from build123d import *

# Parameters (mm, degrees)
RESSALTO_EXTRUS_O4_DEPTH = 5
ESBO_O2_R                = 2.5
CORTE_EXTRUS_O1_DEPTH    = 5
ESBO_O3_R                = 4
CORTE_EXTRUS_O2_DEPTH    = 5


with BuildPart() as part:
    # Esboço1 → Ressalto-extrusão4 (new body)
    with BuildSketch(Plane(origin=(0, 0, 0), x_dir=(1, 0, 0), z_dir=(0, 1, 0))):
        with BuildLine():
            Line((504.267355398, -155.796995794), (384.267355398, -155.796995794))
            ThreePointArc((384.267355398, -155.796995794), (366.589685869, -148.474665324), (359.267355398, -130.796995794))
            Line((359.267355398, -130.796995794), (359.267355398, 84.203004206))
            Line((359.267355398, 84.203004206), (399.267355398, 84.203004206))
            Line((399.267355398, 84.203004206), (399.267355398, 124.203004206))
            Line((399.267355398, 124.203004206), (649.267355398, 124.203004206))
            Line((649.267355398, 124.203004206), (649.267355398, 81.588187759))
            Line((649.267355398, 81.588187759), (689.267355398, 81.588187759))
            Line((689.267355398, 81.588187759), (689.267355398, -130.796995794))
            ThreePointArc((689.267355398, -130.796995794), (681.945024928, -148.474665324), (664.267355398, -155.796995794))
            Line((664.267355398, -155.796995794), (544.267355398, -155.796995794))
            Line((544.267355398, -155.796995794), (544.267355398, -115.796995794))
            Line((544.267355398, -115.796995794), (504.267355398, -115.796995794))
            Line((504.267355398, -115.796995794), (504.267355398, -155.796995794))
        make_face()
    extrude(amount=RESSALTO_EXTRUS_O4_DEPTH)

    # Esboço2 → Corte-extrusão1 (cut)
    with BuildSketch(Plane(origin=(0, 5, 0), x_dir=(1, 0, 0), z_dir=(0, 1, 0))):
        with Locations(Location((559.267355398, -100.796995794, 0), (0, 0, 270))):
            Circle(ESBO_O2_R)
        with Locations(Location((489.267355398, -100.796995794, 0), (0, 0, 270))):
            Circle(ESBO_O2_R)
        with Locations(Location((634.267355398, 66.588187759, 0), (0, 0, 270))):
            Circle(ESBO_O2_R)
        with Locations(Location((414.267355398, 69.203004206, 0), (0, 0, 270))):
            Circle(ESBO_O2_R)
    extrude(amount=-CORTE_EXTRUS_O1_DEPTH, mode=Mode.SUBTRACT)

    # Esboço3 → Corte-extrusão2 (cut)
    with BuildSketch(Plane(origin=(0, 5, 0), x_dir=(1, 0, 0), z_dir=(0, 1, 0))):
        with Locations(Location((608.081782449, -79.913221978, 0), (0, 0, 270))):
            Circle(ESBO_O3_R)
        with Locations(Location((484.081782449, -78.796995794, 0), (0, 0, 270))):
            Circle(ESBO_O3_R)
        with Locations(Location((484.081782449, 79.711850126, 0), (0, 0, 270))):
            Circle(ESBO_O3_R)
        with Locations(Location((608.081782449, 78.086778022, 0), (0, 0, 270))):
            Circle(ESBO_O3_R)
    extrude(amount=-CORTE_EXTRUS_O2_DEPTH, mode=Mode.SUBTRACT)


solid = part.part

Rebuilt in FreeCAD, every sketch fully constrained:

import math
import FreeCAD as App
import Part
import Sketcher

V = App.Vector
Q = App.Units.Quantity

doc = App.newDocument("Part")
params = doc.addObject("Spreadsheet::Sheet", "Params")
for row, (alias, value) in enumerate([
    ("sketch1_radius", "25 mm"),
    ("sketch1_width", "120 mm"),
    ("sketch1_width2", "40 mm"),
    ("sketch1_height", "215 mm"),
    ("pad1_length", "5 mm"),
    ("sketch2_diameter", "5 mm"),
    ("pocket1_length", "5 mm"),
    ("sketch3_diameter", "8 mm"),
    ("pocket2_length", "5 mm"),
], start=1):
    params.set(f"A{row}", alias)
    params.set(f"B{row}", "=" + value)
    params.setAlias(f"B{row}", alias)

body = doc.addObject("PartDesign::Body", "Body")

# Sketch on XZ plane
sketch1 = body.newObject("Sketcher::SketchObject", "Sketch")
sketch1.AttachmentSupport = (doc.getObject("XZ_Plane"), [""])
sketch1.MapMode = "FlatFace"
sketch1.addGeometry([
    Part.LineSegment(V(384, 156, 0), V(504, 156, 0)),  # 0
    Part.LineSegment(V(504, 156, 0), V(504, 116, 0)),  # 1
    Part.LineSegment(V(504, 116, 0), V(544, 116, 0)),  # 2
    Part.LineSegment(V(544, 116, 0), V(544, 156, 0)),  # 3
    Part.LineSegment(V(544, 156, 0), V(664, 156, 0)),  # 4
    Part.ArcOfCircle(Part.Circle(V(664, 131, 0), V(0, 0, 1), 25), math.radians(0), math.radians(90)),  # 5
    Part.LineSegment(V(689, 131, 0), V(689, -82, 0)),  # 6
    Part.LineSegment(V(689, -82, 0), V(649, -82, 0)),  # 7
    Part.LineSegment(V(649, -82, 0), V(649, -124, 0)),  # 8
    Part.LineSegment(V(649, -124, 0), V(399, -124, 0)),  # 9
    Part.LineSegment(V(399, -124, 0), V(399, -84, 0)),  # 10
    Part.LineSegment(V(399, -84, 0), V(359, -84, 0)),  # 11
    Part.LineSegment(V(359, -84, 0), V(359, 131, 0)),  # 12
    Part.ArcOfCircle(Part.Circle(V(384, 131, 0), V(0, 0, 1), 25), math.radians(90), math.radians(180)),  # 13
], False)
sketch1.addConstraint([
    Sketcher.Constraint("Coincident", 0, 2, 1, 1),
    Sketcher.Constraint("Coincident", 1, 2, 2, 1),
    Sketcher.Constraint("Coincident", 2, 2, 3, 1),
    Sketcher.Constraint("Coincident", 3, 2, 4, 1),
    Sketcher.Constraint("Tangent", 4, 2, 5, 2),
    Sketcher.Constraint("Tangent", 5, 1, 6, 1),
    Sketcher.Constraint("Coincident", 6, 2, 7, 1),
    Sketcher.Constraint("Coincident", 7, 2, 8, 1),
    Sketcher.Constraint("Coincident", 8, 2, 9, 1),
    Sketcher.Constraint("Coincident", 9, 2, 10, 1),
    Sketcher.Constraint("Coincident", 10, 2, 11, 1),
    Sketcher.Constraint("Coincident", 11, 2, 12, 1),
    Sketcher.Constraint("Tangent", 12, 2, 13, 2),
    Sketcher.Constraint("Tangent", 13, 1, 0, 1),
    Sketcher.Constraint("Horizontal", 0),
    Sketcher.Constraint("Vertical", 1),
    Sketcher.Constraint("Horizontal", 2),
    Sketcher.Constraint("Vertical", 3),
    Sketcher.Constraint("Horizontal", 4),
    Sketcher.Constraint("Vertical", 6),
    Sketcher.Constraint("Horizontal", 7),
    Sketcher.Constraint("Vertical", 8),
    Sketcher.Constraint("Horizontal", 9),
    Sketcher.Constraint("Vertical", 10),
    Sketcher.Constraint("Horizontal", 11),
    Sketcher.Constraint("Vertical", 12),
    Sketcher.Constraint("Equal", 5, 13),
    Sketcher.Constraint("Horizontal", 5, 3, 13, 3),
    Sketcher.Constraint("Equal", 0, 4),
    Sketcher.Constraint("Equal", 2, 7),
    Sketcher.Constraint("Equal", 7, 11),
    Sketcher.Constraint("Equal", 11, 1),
    Sketcher.Constraint("Equal", 3, 10),
    Sketcher.Constraint("Radius", 5, Q("25 mm")),
    Sketcher.Constraint("DistanceX", 0, 1, 0, 2, Q("120 mm")),
    Sketcher.Constraint("DistanceX", 2, 1, 2, 2, Q("40 mm")),
    Sketcher.Constraint("DistanceY", 12, 1, 12, 2, Q("215 mm")),
    Sketcher.Constraint("DistanceY", 6, 2, 6, 1, Q("212.385184 mm")),
    Sketcher.Constraint("DistanceX", -1, 1, 5, 3, Q("664.267355 mm")),
    Sketcher.Constraint("DistanceY", -1, 1, 5, 3, Q("130.796996 mm")),
])
sketch1.setExpression("Constraints[33]", "Params.sketch1_radius")
sketch1.setExpression("Constraints[34]", "Params.sketch1_width")
sketch1.setExpression("Constraints[35]", "Params.sketch1_width2")
sketch1.setExpression("Constraints[36]", "Params.sketch1_height")
pad1 = body.newObject("PartDesign::Pad", "Pad")
pad1.Profile = sketch1
pad1.setExpression("Length", "Params.pad1_length")
pad1.Reversed = True

# Sketch on XZ plane
sketch2 = body.newObject("Sketcher::SketchObject", "Sketch001")
sketch2.AttachmentSupport = (doc.getObject("XZ_Plane"), [""])
sketch2.MapMode = "FlatFace"
sketch2.AttachmentOffset = App.Placement(V(0, 0, -5), App.Rotation())
sketch2.addGeometry([
    Part.Circle(V(559.3, 100.8, 0), V(0, 0, 1), 2.5),
    Part.Circle(V(489.3, 100.8, 0), V(0, 0, 1), 2.5),
    Part.Circle(V(634.3, -66.6, 0), V(0, 0, 1), 2.5),
    Part.Circle(V(414.3, -69.2, 0), V(0, 0, 1), 2.5),
], False)
sketch2.addConstraint([
    Sketcher.Constraint("Equal", 0, 1),
    Sketcher.Constraint("Equal", 1, 2),
    Sketcher.Constraint("Equal", 2, 3),
    Sketcher.Constraint("Horizontal", 0, 3, 1, 3),
    Sketcher.Constraint("Diameter", 0, Q("5 mm")),
    Sketcher.Constraint("DistanceX", 1, 3, 0, 3, Q("70 mm")),
    Sketcher.Constraint("DistanceX", 0, 3, 2, 3, Q("75 mm")),
    Sketcher.Constraint("DistanceX", 3, 3, 1, 3, Q("75 mm")),
    Sketcher.Constraint("DistanceY", 3, 3, 1, 3, Q("170 mm")),
    Sketcher.Constraint("DistanceX", -1, 1, 0, 3, Q("559.267355 mm")),
    Sketcher.Constraint("DistanceY", -1, 1, 0, 3, Q("100.796996 mm")),
    Sketcher.Constraint("DistanceY", 2, 3, -1, 1, Q("66.588188 mm")),
])
sketch2.setExpression("Constraints[4]", "Params.sketch2_diameter")
pocket1 = body.newObject("PartDesign::Pocket", "Pocket")
pocket1.Profile = sketch2
pocket1.setExpression("Length", "Params.pocket1_length")
pocket1.Reversed = True

# Sketch on XZ plane
sketch3 = body.newObject("Sketcher::SketchObject", "Sketch002")
sketch3.AttachmentSupport = (doc.getObject("XZ_Plane"), [""])
sketch3.MapMode = "FlatFace"
sketch3.AttachmentOffset = App.Placement(V(0, 0, -5), App.Rotation())
sketch3.addGeometry([
    Part.Circle(V(608.1, 79.9, 0), V(0, 0, 1), 4),
    Part.Circle(V(484.1, 78.8, 0), V(0, 0, 1), 4),
    Part.Circle(V(484.1, -79.7, 0), V(0, 0, 1), 4),
    Part.Circle(V(608.1, -78.1, 0), V(0, 0, 1), 4),
], False)
sketch3.addConstraint([
    Sketcher.Constraint("Equal", 0, 1),
    Sketcher.Constraint("Equal", 1, 2),
    Sketcher.Constraint("Equal", 2, 3),
    Sketcher.Constraint("Vertical", 1, 3, 2, 3),
    Sketcher.Constraint("Vertical", 0, 3, 3, 3),
    Sketcher.Constraint("Diameter", 0, Q("8 mm")),
    Sketcher.Constraint("DistanceX", 1, 3, 0, 3, Q("124 mm")),
    Sketcher.Constraint("DistanceY", 3, 3, 0, 3, Q("158 mm")),
    Sketcher.Constraint("DistanceY", -1, 1, 0, 3, Q("79.913222 mm")),
    Sketcher.Constraint("DistanceY", 2, 3, -1, 1, Q("79.71185 mm")),
    Sketcher.Constraint("DistanceX", -1, 1, 0, 3, Q("608.081782 mm")),
    Sketcher.Constraint("DistanceY", -1, 1, 1, 3, Q("78.796996 mm")),
])
sketch3.setExpression("Constraints[5]", "Params.sketch3_diameter")
pocket2 = body.newObject("PartDesign::Pocket", "Pocket001")
pocket2.Profile = sketch3
pocket2.setExpression("Length", "Params.pocket2_length")
pocket2.Reversed = True

doc.recompute()
